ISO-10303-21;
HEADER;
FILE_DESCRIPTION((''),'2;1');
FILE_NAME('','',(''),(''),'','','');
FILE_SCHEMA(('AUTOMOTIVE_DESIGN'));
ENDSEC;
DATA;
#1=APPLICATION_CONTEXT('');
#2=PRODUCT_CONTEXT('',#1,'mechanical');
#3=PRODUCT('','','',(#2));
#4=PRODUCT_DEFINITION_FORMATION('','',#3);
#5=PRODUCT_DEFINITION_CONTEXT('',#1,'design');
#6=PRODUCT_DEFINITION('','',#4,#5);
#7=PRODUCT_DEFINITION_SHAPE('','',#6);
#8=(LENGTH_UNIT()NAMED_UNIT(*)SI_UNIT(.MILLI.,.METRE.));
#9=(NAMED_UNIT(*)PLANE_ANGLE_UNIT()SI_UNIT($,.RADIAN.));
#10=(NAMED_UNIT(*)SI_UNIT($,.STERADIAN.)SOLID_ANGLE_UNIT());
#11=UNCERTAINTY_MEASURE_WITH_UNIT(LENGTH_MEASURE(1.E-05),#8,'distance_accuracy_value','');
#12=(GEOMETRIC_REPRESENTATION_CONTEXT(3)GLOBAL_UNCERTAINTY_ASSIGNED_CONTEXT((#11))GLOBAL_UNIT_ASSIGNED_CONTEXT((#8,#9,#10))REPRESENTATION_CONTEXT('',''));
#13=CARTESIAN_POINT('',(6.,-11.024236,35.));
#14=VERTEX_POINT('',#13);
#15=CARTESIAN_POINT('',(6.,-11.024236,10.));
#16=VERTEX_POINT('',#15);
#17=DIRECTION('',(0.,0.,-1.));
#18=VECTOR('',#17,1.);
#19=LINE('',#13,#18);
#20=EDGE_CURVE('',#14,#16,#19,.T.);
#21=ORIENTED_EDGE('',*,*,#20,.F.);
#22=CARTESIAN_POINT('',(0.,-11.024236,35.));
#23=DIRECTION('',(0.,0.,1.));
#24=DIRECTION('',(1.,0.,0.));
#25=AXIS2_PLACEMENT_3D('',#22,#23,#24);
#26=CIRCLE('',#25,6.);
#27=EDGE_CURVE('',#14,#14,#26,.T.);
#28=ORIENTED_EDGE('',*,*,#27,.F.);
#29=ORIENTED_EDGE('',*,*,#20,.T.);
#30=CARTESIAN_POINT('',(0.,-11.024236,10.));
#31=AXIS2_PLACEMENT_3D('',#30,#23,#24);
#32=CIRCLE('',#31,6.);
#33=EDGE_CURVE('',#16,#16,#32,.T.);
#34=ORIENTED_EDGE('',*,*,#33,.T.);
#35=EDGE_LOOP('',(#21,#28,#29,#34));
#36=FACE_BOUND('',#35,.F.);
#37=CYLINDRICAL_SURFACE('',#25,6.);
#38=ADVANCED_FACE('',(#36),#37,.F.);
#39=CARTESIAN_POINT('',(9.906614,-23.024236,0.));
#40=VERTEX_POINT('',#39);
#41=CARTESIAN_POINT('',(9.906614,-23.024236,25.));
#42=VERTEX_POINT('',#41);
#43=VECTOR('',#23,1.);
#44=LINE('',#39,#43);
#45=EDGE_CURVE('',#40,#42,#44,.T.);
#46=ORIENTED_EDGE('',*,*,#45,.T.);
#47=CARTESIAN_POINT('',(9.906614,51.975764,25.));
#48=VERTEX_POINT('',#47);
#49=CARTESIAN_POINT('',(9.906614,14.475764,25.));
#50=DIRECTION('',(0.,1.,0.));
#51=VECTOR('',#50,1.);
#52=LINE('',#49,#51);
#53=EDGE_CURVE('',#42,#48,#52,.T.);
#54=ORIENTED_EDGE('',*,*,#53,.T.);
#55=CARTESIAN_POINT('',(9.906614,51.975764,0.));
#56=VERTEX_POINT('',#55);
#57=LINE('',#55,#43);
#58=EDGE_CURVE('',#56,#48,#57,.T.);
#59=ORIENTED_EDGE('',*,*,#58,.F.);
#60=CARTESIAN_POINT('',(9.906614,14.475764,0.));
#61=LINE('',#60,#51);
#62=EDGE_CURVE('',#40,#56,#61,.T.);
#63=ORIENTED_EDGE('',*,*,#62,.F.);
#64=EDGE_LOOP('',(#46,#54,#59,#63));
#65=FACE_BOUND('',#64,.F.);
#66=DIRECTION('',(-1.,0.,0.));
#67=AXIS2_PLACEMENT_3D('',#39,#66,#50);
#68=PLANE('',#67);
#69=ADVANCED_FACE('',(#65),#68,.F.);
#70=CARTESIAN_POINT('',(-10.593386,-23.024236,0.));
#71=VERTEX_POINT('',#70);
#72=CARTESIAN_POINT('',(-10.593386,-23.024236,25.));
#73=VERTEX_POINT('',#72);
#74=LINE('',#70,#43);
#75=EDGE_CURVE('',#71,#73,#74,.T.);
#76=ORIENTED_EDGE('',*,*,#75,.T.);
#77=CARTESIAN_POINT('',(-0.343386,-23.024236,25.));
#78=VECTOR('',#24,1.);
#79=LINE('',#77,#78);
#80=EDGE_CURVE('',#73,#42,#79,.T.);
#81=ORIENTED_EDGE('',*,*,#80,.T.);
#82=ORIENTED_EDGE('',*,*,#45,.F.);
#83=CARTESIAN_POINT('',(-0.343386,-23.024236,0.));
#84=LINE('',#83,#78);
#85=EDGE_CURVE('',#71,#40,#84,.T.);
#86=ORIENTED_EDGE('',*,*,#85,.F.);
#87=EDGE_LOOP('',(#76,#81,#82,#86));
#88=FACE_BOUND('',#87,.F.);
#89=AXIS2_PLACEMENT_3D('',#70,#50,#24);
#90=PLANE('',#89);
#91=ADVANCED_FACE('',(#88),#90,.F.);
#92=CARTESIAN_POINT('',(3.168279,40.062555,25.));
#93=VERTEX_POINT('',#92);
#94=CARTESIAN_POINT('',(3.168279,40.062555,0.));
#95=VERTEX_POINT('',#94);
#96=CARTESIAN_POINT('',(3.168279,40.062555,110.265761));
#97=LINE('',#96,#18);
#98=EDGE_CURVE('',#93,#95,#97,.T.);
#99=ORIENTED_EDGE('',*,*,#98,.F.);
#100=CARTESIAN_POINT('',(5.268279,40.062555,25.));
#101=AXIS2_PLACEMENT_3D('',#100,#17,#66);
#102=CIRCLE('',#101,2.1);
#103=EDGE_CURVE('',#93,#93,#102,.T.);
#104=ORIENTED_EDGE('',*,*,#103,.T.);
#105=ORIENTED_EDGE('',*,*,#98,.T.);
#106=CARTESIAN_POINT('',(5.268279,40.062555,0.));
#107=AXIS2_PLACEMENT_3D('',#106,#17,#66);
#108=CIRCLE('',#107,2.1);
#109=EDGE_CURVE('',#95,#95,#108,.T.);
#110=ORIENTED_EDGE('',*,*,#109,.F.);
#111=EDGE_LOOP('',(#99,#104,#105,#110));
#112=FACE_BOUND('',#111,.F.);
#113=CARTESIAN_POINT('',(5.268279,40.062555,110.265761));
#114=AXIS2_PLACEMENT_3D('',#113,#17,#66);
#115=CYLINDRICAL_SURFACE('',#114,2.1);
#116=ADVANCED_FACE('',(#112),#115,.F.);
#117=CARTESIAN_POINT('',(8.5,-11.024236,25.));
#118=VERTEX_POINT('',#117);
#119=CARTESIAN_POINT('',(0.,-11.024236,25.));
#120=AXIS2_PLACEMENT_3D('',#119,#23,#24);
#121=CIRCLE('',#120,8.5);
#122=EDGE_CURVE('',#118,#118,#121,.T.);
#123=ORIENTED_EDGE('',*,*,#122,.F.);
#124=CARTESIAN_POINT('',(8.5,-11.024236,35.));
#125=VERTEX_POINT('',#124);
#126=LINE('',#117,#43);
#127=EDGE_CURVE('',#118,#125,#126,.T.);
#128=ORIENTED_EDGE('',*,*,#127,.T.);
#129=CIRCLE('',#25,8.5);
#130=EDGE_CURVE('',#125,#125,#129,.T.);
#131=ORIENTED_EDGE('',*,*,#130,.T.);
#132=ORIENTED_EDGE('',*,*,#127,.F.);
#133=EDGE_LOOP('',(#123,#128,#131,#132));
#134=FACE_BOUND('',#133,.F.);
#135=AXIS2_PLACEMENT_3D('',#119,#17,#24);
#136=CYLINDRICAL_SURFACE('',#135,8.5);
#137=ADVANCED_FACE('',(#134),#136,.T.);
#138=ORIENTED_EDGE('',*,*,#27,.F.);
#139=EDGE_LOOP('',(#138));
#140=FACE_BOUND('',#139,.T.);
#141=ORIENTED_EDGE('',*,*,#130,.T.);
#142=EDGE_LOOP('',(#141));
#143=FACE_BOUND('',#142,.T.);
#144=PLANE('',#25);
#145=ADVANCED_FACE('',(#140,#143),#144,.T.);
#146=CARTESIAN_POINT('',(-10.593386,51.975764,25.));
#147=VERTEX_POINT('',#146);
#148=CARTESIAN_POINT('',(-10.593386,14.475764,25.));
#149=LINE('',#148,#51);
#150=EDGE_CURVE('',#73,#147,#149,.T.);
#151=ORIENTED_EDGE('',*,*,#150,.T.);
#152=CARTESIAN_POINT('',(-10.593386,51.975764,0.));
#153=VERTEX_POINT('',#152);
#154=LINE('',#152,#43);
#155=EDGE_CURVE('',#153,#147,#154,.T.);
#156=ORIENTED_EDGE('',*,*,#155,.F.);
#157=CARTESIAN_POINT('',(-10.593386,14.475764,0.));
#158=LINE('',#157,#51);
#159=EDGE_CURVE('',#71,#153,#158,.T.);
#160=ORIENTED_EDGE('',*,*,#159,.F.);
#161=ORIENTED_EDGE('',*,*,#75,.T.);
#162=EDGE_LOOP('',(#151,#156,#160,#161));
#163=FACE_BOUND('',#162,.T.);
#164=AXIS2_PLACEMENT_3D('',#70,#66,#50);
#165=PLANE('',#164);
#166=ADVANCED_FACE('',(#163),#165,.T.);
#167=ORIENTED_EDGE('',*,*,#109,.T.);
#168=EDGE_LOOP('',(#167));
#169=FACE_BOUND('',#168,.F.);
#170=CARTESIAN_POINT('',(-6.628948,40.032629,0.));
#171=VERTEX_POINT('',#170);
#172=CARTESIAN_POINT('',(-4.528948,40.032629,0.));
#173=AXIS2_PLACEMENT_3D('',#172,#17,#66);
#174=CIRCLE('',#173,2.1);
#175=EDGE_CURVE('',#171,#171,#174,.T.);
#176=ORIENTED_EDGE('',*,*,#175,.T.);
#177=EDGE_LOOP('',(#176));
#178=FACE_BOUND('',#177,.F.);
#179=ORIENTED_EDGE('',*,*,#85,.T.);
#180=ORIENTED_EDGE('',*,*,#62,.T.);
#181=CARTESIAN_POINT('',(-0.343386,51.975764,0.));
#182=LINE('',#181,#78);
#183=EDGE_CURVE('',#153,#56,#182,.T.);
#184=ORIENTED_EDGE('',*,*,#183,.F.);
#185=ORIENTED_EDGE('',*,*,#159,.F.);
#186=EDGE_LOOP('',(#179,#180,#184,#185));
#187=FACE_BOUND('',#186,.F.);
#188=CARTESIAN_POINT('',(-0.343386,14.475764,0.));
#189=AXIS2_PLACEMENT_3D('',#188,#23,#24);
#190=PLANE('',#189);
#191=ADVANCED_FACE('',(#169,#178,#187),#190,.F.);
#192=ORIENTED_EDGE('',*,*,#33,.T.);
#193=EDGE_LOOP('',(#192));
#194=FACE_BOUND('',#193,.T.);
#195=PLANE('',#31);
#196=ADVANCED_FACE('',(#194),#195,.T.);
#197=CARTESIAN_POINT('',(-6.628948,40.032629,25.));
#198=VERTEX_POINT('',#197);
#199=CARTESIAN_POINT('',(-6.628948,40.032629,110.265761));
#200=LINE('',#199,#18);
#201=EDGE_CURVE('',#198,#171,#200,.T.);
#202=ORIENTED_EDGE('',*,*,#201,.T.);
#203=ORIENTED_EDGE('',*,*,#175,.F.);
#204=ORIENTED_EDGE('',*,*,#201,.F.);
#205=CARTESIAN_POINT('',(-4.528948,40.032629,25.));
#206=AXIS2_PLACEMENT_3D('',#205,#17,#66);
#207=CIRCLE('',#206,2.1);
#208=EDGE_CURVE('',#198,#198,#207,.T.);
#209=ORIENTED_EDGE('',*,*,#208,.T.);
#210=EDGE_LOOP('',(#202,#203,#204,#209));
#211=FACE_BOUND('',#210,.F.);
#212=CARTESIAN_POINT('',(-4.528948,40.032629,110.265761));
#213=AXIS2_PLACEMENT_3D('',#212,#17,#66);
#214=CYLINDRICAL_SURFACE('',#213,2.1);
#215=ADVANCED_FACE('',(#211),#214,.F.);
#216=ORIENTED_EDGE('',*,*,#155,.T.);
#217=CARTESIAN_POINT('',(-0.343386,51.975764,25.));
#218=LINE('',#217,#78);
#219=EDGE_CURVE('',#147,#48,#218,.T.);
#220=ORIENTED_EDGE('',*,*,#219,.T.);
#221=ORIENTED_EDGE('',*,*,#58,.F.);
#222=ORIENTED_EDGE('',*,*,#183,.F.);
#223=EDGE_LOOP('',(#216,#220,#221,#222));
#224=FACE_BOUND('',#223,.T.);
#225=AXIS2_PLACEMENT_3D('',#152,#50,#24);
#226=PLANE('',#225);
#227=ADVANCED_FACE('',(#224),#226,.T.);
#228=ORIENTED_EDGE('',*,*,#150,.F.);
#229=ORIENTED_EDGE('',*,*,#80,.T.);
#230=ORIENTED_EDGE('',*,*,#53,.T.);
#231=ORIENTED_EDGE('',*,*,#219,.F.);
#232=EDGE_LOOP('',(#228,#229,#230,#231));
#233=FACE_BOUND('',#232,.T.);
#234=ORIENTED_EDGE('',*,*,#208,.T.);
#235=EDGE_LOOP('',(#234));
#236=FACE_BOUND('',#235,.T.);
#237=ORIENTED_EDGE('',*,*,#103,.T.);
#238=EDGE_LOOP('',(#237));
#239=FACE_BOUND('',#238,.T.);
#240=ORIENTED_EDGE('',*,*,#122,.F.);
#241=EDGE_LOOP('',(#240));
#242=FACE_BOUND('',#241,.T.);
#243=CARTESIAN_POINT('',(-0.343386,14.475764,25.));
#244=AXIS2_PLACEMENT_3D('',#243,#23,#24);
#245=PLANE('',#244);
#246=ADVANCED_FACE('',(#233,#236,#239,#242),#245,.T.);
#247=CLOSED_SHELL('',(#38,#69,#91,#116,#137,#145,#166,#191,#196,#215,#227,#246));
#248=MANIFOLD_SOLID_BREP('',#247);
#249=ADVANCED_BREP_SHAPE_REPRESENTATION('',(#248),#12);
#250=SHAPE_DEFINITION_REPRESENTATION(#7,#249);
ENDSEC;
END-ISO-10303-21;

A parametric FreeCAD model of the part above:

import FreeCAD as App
import Part
import Sketcher
from FreeCAD import Vector
Q = App.Units.Quantity


def add_polygon(sketch, points):
    """Adds a closed chain of lines whose ends are joined by coincident constraints."""
    first, n = sketch.GeometryCount, len(points)
    for a, b in zip(points, points[1:] + points[:1]):
        sketch.addGeometry(Part.LineSegment(App.Vector(*a, 0), App.Vector(*b, 0)), False)
    for i in range(n):
        sketch.addConstraint(Sketcher.Constraint("Coincident", first + i, 2, first + (i + 1) % n, 1))

doc = App.newDocument("Part")
body = doc.addObject("PartDesign::Body", "Body")

sketch1 = doc.addObject("Sketcher::SketchObject", "Sketch")
body.addObject(sketch1)
sketch1.AttachmentSupport = (doc.XY_Plane, [""])
sketch1.MapMode = "FlatFace"
add_polygon(sketch1, [(-11, 52), (-11, -23), (10, -23), (10, 52)])
sketch1.addConstraint([
    Sketcher.Constraint("Vertical", 0),
    Sketcher.Constraint("Horizontal", 1),
    Sketcher.Constraint("Vertical", 2),
    Sketcher.Constraint("Horizontal", 3),
    Sketcher.Constraint("DistanceY", 0, 2, 0, 1, Q("75 mm")),
    Sketcher.Constraint("DistanceX", 1, 1, 1, 2, Q("20.5 mm")),
    Sketcher.Constraint("DistanceX", 0, 2, -1, 1, Q("10.593386 mm")),
    Sketcher.Constraint("DistanceY", 0, 2, -1, 1, Q("23.024236 mm")),
])
pad1 = doc.addObject("PartDesign::Pad", "Pad")
body.addObject(pad1)
pad1.Profile = sketch1
pad1.Length = 25

sketch2 = doc.addObject("Sketcher::SketchObject", "Sketch001")
body.addObject(sketch2)
sketch2.AttachmentSupport = (doc.XY_Plane, [""])
sketch2.MapMode = "FlatFace"
sketch2.AttachmentOffset = App.Placement(Vector(0, 0, 25), App.Rotation())
sketch2.addGeometry(Part.Circle(Vector(0, -11, 0), Vector(0, 0, 1), 8), False)
sketch2.addConstraint([
    Sketcher.Constraint("PointOnObject", 0, 3, -2),
    Sketcher.Constraint("Diameter", 0, Q("17 mm")),
    Sketcher.Constraint("DistanceY", 0, 3, -1, 1, Q("11.024236 mm")),
])
pad2 = doc.addObject("PartDesign::Pad", "Pad001")
body.addObject(pad2)
pad2.Profile = sketch2
pad2.Length = 10

sketch3 = doc.addObject("Sketcher::SketchObject", "Sketch002")
body.addObject(sketch3)
sketch3.AttachmentSupport = (doc.XY_Plane, [""])
sketch3.MapMode = "FlatFace"
sketch3.AttachmentOffset = App.Placement(Vector(0, 0, 25), App.Rotation())
sketch3.addGeometry([
    Part.Circle(Vector(-4.5, 40, 0), Vector(0, 0, 1), 2.1),
    Part.Circle(Vector(5.3, 40.1, 0), Vector(0, 0, 1), 2.1),
], False)
sketch3.addConstraint([
    Sketcher.Constraint("Equal", 0, 1),
    Sketcher.Constraint("Diameter", 0, Q("4.2 mm")),
    Sketcher.Constraint("DistanceX", 0, 3, -1, 1, Q("4.528948 mm")),
    Sketcher.Constraint("DistanceY", -1, 1, 0, 3, Q("40.032629 mm")),
    Sketcher.Constraint("DistanceX", -1, 1, 1, 3, Q("5.268279 mm")),
    Sketcher.Constraint("DistanceY", -1, 1, 1, 3, Q("40.062555 mm")),
])
doc.recompute()
hole = doc.addObject("PartDesign::Hole", "Hole")
body.addObject(hole)
hole.Profile = sketch3
hole.ThreadType = "None"
hole.Diameter = 4.2
hole.DepthType = "ThroughAll"

sketch4 = doc.addObject("Sketcher::SketchObject", "Sketch003")
body.addObject(sketch4)
sketch4.AttachmentSupport = (doc.XY_Plane, [""])
sketch4.MapMode = "FlatFace"
sketch4.AttachmentOffset = App.Placement(Vector(0, 0, 35), App.Rotation())
sketch4.addGeometry(Part.Circle(Vector(0, -11, 0), Vector(0, 0, 1), 6), False)
sketch4.addConstraint([
    Sketcher.Constraint("PointOnObject", 0, 3, -2),
    Sketcher.Constraint("Diameter", 0, Q("12 mm")),
    Sketcher.Constraint("DistanceY", 0, 3, -1, 1, Q("11.024236 mm")),
])
pocket1 = doc.addObject("PartDesign::Pocket", "Pocket")
body.addObject(pocket1)
pocket1.Profile = sketch4
pocket1.Length = 25

doc.recompute()
